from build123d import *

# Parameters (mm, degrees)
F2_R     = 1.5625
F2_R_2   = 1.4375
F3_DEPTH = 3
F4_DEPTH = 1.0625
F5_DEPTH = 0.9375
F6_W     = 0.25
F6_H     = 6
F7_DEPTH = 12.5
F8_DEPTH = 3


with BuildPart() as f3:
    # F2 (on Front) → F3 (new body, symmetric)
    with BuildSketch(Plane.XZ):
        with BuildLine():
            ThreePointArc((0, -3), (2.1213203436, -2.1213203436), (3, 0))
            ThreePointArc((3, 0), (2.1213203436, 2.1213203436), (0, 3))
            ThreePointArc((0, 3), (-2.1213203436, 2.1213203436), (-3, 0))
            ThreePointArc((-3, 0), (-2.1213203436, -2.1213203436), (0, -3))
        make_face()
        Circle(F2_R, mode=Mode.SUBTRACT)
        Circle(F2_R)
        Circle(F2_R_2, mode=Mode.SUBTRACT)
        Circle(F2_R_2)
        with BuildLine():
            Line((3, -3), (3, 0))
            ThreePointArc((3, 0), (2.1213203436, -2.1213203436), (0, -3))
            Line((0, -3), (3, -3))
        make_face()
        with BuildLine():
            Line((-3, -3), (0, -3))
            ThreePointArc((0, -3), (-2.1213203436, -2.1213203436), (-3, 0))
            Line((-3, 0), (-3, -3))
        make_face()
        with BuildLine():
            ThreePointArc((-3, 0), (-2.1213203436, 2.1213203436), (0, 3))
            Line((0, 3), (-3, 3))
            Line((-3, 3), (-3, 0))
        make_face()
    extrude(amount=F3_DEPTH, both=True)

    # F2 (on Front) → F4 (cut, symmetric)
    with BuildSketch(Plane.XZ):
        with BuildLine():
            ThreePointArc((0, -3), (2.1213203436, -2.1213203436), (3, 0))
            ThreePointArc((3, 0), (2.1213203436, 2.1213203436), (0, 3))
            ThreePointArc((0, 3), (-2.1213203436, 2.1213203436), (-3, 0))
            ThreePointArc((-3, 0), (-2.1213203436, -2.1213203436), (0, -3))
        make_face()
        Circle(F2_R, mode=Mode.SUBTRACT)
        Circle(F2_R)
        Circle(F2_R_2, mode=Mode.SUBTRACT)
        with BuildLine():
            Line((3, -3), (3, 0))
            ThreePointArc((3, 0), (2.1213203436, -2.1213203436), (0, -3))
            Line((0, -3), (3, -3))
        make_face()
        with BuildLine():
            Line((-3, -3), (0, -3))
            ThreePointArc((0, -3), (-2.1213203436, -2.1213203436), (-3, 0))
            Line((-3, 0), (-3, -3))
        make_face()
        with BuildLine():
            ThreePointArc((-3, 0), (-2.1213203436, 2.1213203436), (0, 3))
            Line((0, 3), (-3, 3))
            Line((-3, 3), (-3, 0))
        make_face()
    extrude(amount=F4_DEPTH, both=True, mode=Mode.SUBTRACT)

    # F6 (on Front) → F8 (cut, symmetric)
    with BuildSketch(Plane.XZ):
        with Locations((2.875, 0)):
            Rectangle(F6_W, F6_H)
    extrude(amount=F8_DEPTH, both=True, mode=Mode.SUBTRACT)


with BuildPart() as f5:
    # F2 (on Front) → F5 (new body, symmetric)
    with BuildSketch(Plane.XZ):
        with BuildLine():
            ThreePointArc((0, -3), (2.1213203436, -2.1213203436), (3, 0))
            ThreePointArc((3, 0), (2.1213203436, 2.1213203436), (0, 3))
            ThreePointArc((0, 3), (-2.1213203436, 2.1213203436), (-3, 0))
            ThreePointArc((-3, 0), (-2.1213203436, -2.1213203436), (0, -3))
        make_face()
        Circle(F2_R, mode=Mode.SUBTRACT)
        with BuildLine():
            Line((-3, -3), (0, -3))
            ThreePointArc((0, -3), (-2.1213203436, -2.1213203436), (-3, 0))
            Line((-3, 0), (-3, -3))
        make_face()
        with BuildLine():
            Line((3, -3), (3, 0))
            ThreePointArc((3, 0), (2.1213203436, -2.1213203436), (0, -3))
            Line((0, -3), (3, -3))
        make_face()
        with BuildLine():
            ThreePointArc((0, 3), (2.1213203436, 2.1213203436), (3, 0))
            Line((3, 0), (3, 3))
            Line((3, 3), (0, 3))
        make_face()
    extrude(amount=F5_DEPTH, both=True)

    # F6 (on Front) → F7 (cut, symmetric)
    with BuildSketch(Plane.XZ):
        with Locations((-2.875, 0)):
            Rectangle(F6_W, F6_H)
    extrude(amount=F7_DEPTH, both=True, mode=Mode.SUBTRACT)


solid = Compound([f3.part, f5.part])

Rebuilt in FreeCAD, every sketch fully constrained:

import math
import FreeCAD as App
import Part
import Sketcher
Q = App.Units.Quantity

doc = App.newDocument("Part")
params = doc.addObject("Spreadsheet::Sheet", "Params")
for row, (alias, value) in enumerate([
    ("sketch1_radius", "3 mm"),
    ("pad1_length", "6 mm"),
    ("sketch2_radius", "3 mm"),
    ("pocket1_length", "2.125 mm"),
    ("sketch3_height", "6 mm"),
    ("sketch3_width", "0.25 mm"),
    ("pocket2_length", "6 mm"),
    ("sketch4_radius", "3 mm"),
    ("pad2_length", "1.875 mm"),
    ("sketch5_height", "6 mm"),
    ("sketch5_width", "0.25 mm"),
    ("pocket3_length", "25 mm"),
], start=1):
    params.set(f"A{row}", alias)
    params.set(f"B{row}", "=" + value)
    params.setAlias(f"B{row}", alias)

body = doc.addObject("PartDesign::Body", "Body")

sketch1 = body.newObject("Sketcher::SketchObject", "Sketch")
sketch1.AttachmentSupport = (doc.getObject("XZ_Plane"), [""])
sketch1.MapMode = "FlatFace"
sketch1.addGeometry([
    Part.ArcOfCircle(Part.Circle(App.Vector(0, 0, 0), App.Vector(0, 0, 1), 3), math.radians(0), math.radians(90)),
    Part.LineSegment(App.Vector(0, 3, 0), App.Vector(-3, 3, 0)),
    Part.LineSegment(App.Vector(-3, 3, 0), App.Vector(-3, -3, 0)),
    Part.LineSegment(App.Vector(-3, -3, 0), App.Vector(3, -3, 0)),
    Part.LineSegment(App.Vector(3, -3, 0), App.Vector(3, 0, 0)),
], False)
sketch1.addConstraint([
    Sketcher.Constraint("Tangent", 0, 2, 1, 1),
    Sketcher.Constraint("Coincident", 1, 2, 2, 1),
    Sketcher.Constraint("Coincident", 2, 2, 3, 1),
    Sketcher.Constraint("Coincident", 3, 2, 4, 1),
    Sketcher.Constraint("Tangent", 4, 2, 0, 1),
    Sketcher.Constraint("Horizontal", 1),
    Sketcher.Constraint("Vertical", 2),
    Sketcher.Constraint("Horizontal", 3),
    Sketcher.Constraint("Vertical", 4),
    Sketcher.Constraint("Coincident", 0, 3, -1, 1),
    Sketcher.Constraint("Symmetric", 1, 2, 3, 2, -1, 1),
    Sketcher.Constraint("Radius", 0, Q("3 mm")),
])
sketch1.setExpression("Constraints[11]", "Params.sketch1_radius")
pad1 = body.newObject("PartDesign::Pad", "Pad")
pad1.Profile = sketch1
pad1.setExpression("Length", "Params.pad1_length")
pad1.Midplane = True

sketch2 = body.newObject("Sketcher::SketchObject", "Sketch001")
sketch2.AttachmentSupport = (doc.getObject("XZ_Plane"), [""])
sketch2.MapMode = "FlatFace"
sketch2.addGeometry([
    Part.LineSegment(App.Vector(3, -3, 0), App.Vector(3, 0, 0)),
    Part.ArcOfCircle(Part.Circle(App.Vector(0, 0, 0), App.Vector(0, 0, 1), 3), math.radians(0), math.radians(90)),
    Part.LineSegment(App.Vector(0, 3, 0), App.Vector(-3, 3, 0)),
    Part.LineSegment(App.Vector(-3, 3, 0), App.Vector(-3, -3, 0)),
    Part.LineSegment(App.Vector(-3, -3, 0), App.Vector(3, -3, 0)),
    Part.Circle(App.Vector(0, 0, 0), App.Vector(0, 0, 1), 1.4375),
], False)
sketch2.addConstraint([
    Sketcher.Constraint("Tangent", 0, 2, 1, 1),
    Sketcher.Constraint("Tangent", 1, 2, 2, 1),
    Sketcher.Constraint("Coincident", 2, 2, 3, 1),
    Sketcher.Constraint("Coincident", 3, 2, 4, 1),
    Sketcher.Constraint("Coincident", 4, 2, 0, 1),
    Sketcher.Constraint("Vertical", 0),
    Sketcher.Constraint("Horizontal", 2),
    Sketcher.Constraint("Vertical", 3),
    Sketcher.Constraint("Horizontal", 4),
    Sketcher.Constraint("Coincident", 1, 3, -1, 1),
    Sketcher.Constraint("Coincident", 5, 3, -1, 1),
    Sketcher.Constraint("Symmetric", 2, 2, 4, 2, -1, 1),
    Sketcher.Constraint("Radius", 1, Q("3 mm")),
    Sketcher.Constraint("Diameter", 5, Q("2.875 mm")),
])
sketch2.setExpression("Constraints[12]", "Params.sketch2_radius")
pocket1 = body.newObject("PartDesign::Pocket", "Pocket")
pocket1.Profile = sketch2
pocket1.setExpression("Length", "Params.pocket1_length")
pocket1.Midplane = True

sketch3 = body.newObject("Sketcher::SketchObject", "Sketch002")
sketch3.AttachmentSupport = (doc.getObject("XZ_Plane"), [""])
sketch3.MapMode = "FlatFace"
sketch3.addGeometry([
    Part.LineSegment(App.Vector(2.75, 3, 0), App.Vector(2.75, -3, 0)),
    Part.LineSegment(App.Vector(2.75, -3, 0), App.Vector(3, -3, 0)),
    Part.LineSegment(App.Vector(3, -3, 0), App.Vector(3, 3, 0)),
    Part.LineSegment(App.Vector(3, 3, 0), App.Vector(2.75, 3, 0)),
], False)
sketch3.addConstraint([
    Sketcher.Constraint("Coincident", 0, 2, 1, 1),
    Sketcher.Constraint("Coincident", 1, 2, 2, 1),
    Sketcher.Constraint("Coincident", 2, 2, 3, 1),
    Sketcher.Constraint("Coincident", 3, 2, 0, 1),
    Sketcher.Constraint("Vertical", 0),
    Sketcher.Constraint("Horizontal", 1),
    Sketcher.Constraint("Vertical", 2),
    Sketcher.Constraint("Horizontal", 3),
    Sketcher.Constraint("DistanceY", 0, 2, 0, 1, Q("6 mm")),
    Sketcher.Constraint("DistanceY", 0, 2, -1, 1, Q("3 mm")),
    Sketcher.Constraint("DistanceX", -1, 1, 1, 2, Q("3 mm")),
    Sketcher.Constraint("DistanceX", 1, 1, 1, 2, Q("0.25 mm")),
])
sketch3.setExpression("Constraints[8]", "Params.sketch3_height")
sketch3.setExpression("Constraints[11]", "Params.sketch3_width")
pocket2 = body.newObject("PartDesign::Pocket", "Pocket001")
pocket2.Profile = sketch3
pocket2.setExpression("Length", "Params.pocket2_length")
pocket2.Midplane = True
body2 = doc.addObject("PartDesign::Body", "Body001")

sketch4 = body2.newObject("Sketcher::SketchObject", "Sketch003")
sketch4.AttachmentSupport = (doc.getObject("XZ_Plane001"), [""])
sketch4.MapMode = "FlatFace"
sketch4.addGeometry([
    Part.ArcOfCircle(Part.Circle(App.Vector(0, 0, 0), App.Vector(0, 0, 1), 3), math.radians(90), math.radians(180)),
    Part.LineSegment(App.Vector(-3, 0, 0), App.Vector(-3, -3, 0)),
    Part.LineSegment(App.Vector(-3, -3, 0), App.Vector(3, -3, 0)),
    Part.LineSegment(App.Vector(3, -3, 0), App.Vector(3, 3, 0)),
    Part.LineSegment(App.Vector(3, 3, 0), App.Vector(0, 3, 0)),
    Part.Circle(App.Vector(0, 0, 0), App.Vector(0, 0, 1), 1.5625),
], False)
sketch4.addConstraint([
    Sketcher.Constraint("Tangent", 0, 2, 1, 1),
    Sketcher.Constraint("Coincident", 1, 2, 2, 1),
    Sketcher.Constraint("Coincident", 2, 2, 3, 1),
    Sketcher.Constraint("Coincident", 3, 2, 4, 1),
    Sketcher.Constraint("Tangent", 4, 2, 0, 1),
    Sketcher.Constraint("Vertical", 1),
    Sketcher.Constraint("Horizontal", 2),
    Sketcher.Constraint("Vertical", 3),
    Sketcher.Constraint("Horizontal", 4),
    Sketcher.Constraint("Coincident", 0, 3, -1, 1),
    Sketcher.Constraint("Coincident", 5, 3, -1, 1),
    Sketcher.Constraint("Symmetric", 1, 2, 3, 2, -1, 1),
    Sketcher.Constraint("Radius", 0, Q("3 mm")),
    Sketcher.Constraint("Diameter", 5, Q("3.125 mm")),
])
sketch4.setExpression("Constraints[12]", "Params.sketch4_radius")
pad2 = body2.newObject("PartDesign::Pad", "Pad001")
pad2.Profile = sketch4
pad2.setExpression("Length", "Params.pad2_length")
pad2.Midplane = True

sketch5 = body2.newObject("Sketcher::SketchObject", "Sketch004")
sketch5.AttachmentSupport = (doc.getObject("XZ_Plane001"), [""])
sketch5.MapMode = "FlatFace"
sketch5.addGeometry([
    Part.LineSegment(App.Vector(-3, 3, 0), App.Vector(-3, -3, 0)),
    Part.LineSegment(App.Vector(-3, -3, 0), App.Vector(-2.75, -3, 0)),
    Part.LineSegment(App.Vector(-2.75, -3, 0), App.Vector(-2.75, 3, 0)),
    Part.LineSegment(App.Vector(-2.75, 3, 0), App.Vector(-3, 3, 0)),
], False)
sketch5.addConstraint([
    Sketcher.Constraint("Coincident", 0, 2, 1, 1),
    Sketcher.Constraint("Coincident", 1, 2, 2, 1),
    Sketcher.Constraint("Coincident", 2, 2, 3, 1),
    Sketcher.Constraint("Coincident", 3, 2, 0, 1),
    Sketcher.Constraint("Vertical", 0),
    Sketcher.Constraint("Horizontal", 1),
    Sketcher.Constraint("Vertical", 2),
    Sketcher.Constraint("Horizontal", 3),
    Sketcher.Constraint("DistanceY", 0, 2, 0, 1, Q("6 mm")),
    Sketcher.Constraint("DistanceX", 0, 2, -1, 1, Q("3 mm")),
    Sketcher.Constraint("DistanceY", 0, 2, -1, 1, Q("3 mm")),
    Sketcher.Constraint("DistanceX", 1, 1, 1, 2, Q("0.25 mm")),
])
sketch5.setExpression("Constraints[8]", "Params.sketch5_height")
sketch5.setExpression("Constraints[11]", "Params.sketch5_width")
pocket3 = body2.newObject("PartDesign::Pocket", "Pocket002")
pocket3.Profile = sketch5
pocket3.setExpression("Length", "Params.pocket3_length")
pocket3.Midplane = True

doc.recompute()
